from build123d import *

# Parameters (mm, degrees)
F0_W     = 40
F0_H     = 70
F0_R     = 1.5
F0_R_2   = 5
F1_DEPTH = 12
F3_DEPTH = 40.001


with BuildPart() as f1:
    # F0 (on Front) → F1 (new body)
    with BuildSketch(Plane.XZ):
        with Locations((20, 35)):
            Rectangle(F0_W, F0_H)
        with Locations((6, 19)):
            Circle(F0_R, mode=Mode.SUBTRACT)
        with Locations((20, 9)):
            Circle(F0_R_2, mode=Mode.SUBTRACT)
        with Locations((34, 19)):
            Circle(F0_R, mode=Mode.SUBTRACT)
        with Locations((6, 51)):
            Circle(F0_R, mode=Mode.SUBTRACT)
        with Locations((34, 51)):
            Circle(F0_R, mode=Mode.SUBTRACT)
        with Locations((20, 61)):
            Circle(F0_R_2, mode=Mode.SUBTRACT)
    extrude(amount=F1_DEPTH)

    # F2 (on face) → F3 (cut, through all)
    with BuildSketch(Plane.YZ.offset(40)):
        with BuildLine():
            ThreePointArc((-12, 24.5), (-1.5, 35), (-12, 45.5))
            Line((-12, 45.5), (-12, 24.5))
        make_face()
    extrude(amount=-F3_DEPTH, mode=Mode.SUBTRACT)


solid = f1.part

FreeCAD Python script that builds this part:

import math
import FreeCAD as App
import Part
import Sketcher
from FreeCAD import Vector


def add_polygon(sketch, points):
    """Adds a closed chain of lines whose ends are joined by coincident constraints."""
    first, n = sketch.GeometryCount, len(points)
    for a, b in zip(points, points[1:] + points[:1]):
        sketch.addGeometry(Part.LineSegment(App.Vector(*a, 0), App.Vector(*b, 0)), False)
    for i in range(n):
        sketch.addConstraint(Sketcher.Constraint("Coincident", first + i, 2, first + (i + 1) % n, 1))

doc = App.newDocument("Part")
params = doc.addObject("Spreadsheet::Sheet", "Params")
for row, (alias, value) in enumerate([
    ("sketch1_diameter", "3 mm"),
    ("sketch1_diameter2", "10 mm"),
    ("sketch1_width", "40 mm"),
    ("sketch1_height", "70 mm"),
    ("pad1_length", "12 mm"),
    ("sketch2_radius", "10.5 mm"),
], start=1):
    params.set(f"A{row}", alias)
    params.set(f"B{row}", "=" + value)
    params.setAlias(f"B{row}", alias)

body = doc.addObject("PartDesign::Body", "Body")

# Sketch on XZ plane
sketch1 = body.newObject("Sketcher::SketchObject", "Sketch")
sketch1.AttachmentSupport = (doc.getObject("XZ_Plane"), [""])
sketch1.MapMode = "FlatFace"
add_polygon(sketch1, [(0, 70), (0, 0), (40, 0), (40, 70)])  # lines 0-3
sketch1.addGeometry(Part.Circle(Vector(6, 19, 0), Vector(0, 0, 1), 1.5), False)  # 4
sketch1.addGeometry(Part.Circle(Vector(20, 9, 0), Vector(0, 0, 1), 5), False)  # 5
sketch1.addGeometry(Part.Circle(Vector(34, 19, 0), Vector(0, 0, 1), 1.5), False)  # 6
sketch1.addGeometry(Part.Circle(Vector(6, 51, 0), Vector(0, 0, 1), 1.5), False)  # 7
sketch1.addGeometry(Part.Circle(Vector(20, 61, 0), Vector(0, 0, 1), 5), False)  # 8
sketch1.addGeometry(Part.Circle(Vector(34, 51, 0), Vector(0, 0, 1), 1.5), False)  # 9
sketch1.addConstraint(Sketcher.Constraint("Vertical", 0))
sketch1.addConstraint(Sketcher.Constraint("Horizontal", 1))
sketch1.addConstraint(Sketcher.Constraint("Vertical", 2))
sketch1.addConstraint(Sketcher.Constraint("Horizontal", 3))
sketch1.addConstraint(Sketcher.Constraint("Coincident", 0, 2, -1, 1))
sketch1.addConstraint(Sketcher.Constraint("Equal", 4, 6))
sketch1.addConstraint(Sketcher.Constraint("Equal", 6, 7))
sketch1.addConstraint(Sketcher.Constraint("Equal", 5, 8))
sketch1.addConstraint(Sketcher.Constraint("Equal", 7, 9))
sketch1.addConstraint(Sketcher.Constraint("Horizontal", 4, 3, 6, 3))
sketch1.addConstraint(Sketcher.Constraint("Horizontal", 7, 3, 9, 3))
sketch1.addConstraint(Sketcher.Constraint("Vertical", 4, 3, 7, 3))
sketch1.addConstraint(Sketcher.Constraint("Vertical", 5, 3, 8, 3))
sketch1.addConstraint(Sketcher.Constraint("Vertical", 6, 3, 9, 3))
sketch1.addConstraint(Sketcher.Constraint("Diameter", 4, 3.0))
sketch1.addConstraint(Sketcher.Constraint("Diameter", 5, 10.0))
sketch1.addConstraint(Sketcher.Constraint("DistanceX", 1, 1, 1, 2, 40.0))
sketch1.addConstraint(Sketcher.Constraint("DistanceY", 0, 2, 0, 1, 70.0))
sketch1.addConstraint(Sketcher.Constraint("DistanceX", -1, 1, 4, 3, 6.0))
sketch1.addConstraint(Sketcher.Constraint("DistanceY", -1, 1, 4, 3, 19.0))
sketch1.addConstraint(Sketcher.Constraint("DistanceX", -1, 1, 5, 3, 20.0))
sketch1.addConstraint(Sketcher.Constraint("DistanceY", -1, 1, 5, 3, 9.0))
sketch1.addConstraint(Sketcher.Constraint("DistanceX", -1, 1, 6, 3, 34.0))
sketch1.addConstraint(Sketcher.Constraint("DistanceY", -1, 1, 7, 3, 51.0))
sketch1.addConstraint(Sketcher.Constraint("DistanceY", -1, 1, 8, 3, 61.0))
sketch1.setExpression("Constraints[18]", "Params.sketch1_diameter")
sketch1.setExpression("Constraints[19]", "Params.sketch1_diameter2")
sketch1.setExpression("Constraints[20]", "Params.sketch1_width")
sketch1.setExpression("Constraints[21]", "Params.sketch1_height")
pad1 = body.newObject("PartDesign::Pad", "Pad")
pad1.Profile = sketch1
pad1.setExpression("Length", "Params.pad1_length")

# Sketch on YZ plane
sketch2 = body.newObject("Sketcher::SketchObject", "Sketch001")
sketch2.AttachmentSupport = (doc.getObject("YZ_Plane"), [""])
sketch2.MapMode = "FlatFace"
sketch2.AttachmentOffset = App.Placement(Vector(0, 0, 40), App.Rotation())
sketch2.addGeometry(Part.ArcOfCircle(Part.Circle(Vector(-12, 35, 0), Vector(0, 0, 1), 10.5), math.radians(-90), math.radians(90)), False)
sketch2.addGeometry(Part.LineSegment(Vector(-12, 45.5, 0), Vector(-12, 24.5, 0)), False)
sketch2.addConstraint(Sketcher.Constraint("Coincident", 0, 1, 1, 2))
sketch2.addConstraint(Sketcher.Constraint("Coincident", 1, 1, 0, 2))
sketch2.addConstraint(Sketcher.Constraint("Vertical", 1))
sketch2.addConstraint(Sketcher.Constraint("Radius", 0, 10.5))
sketch2.addConstraint(Sketcher.Constraint("DistanceX", 0, 3, -1, 1, 12.0))
sketch2.addConstraint(Sketcher.Constraint("DistanceY", -1, 1, 0, 3, 35.0))
sketch2.addConstraint(Sketcher.Constraint("DistanceX", 0, 1, -1, 1, 12.0))
sketch2.setExpression("Constraints[3]", "Params.sketch2_radius")
pocket1 = body.newObject("PartDesign::Pocket", "Pocket")
pocket1.Profile = sketch2
pocket1.Type = "ThroughAll"

doc.recompute()
